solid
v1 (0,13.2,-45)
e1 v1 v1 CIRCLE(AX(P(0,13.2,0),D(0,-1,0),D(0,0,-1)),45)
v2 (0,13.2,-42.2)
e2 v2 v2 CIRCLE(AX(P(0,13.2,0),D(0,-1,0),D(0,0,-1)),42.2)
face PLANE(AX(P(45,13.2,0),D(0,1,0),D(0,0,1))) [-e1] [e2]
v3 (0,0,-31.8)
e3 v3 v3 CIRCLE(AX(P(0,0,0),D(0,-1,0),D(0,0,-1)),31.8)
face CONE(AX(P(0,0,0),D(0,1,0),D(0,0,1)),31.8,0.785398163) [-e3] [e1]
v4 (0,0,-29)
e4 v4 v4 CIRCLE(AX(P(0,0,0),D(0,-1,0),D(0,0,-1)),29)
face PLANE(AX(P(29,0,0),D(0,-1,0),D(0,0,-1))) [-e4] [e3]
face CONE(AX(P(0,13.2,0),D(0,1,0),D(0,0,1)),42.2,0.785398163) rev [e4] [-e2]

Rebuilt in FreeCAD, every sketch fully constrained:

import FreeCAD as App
import Part
import Sketcher

V = App.Vector
Q = App.Units.Quantity

doc = App.newDocument("Part")
body = doc.addObject("PartDesign::Body", "Body")

sketch1 = body.newObject("Sketcher::SketchObject", "Sketch")
sketch1.AttachmentSupport = (doc.getObject("XY_Plane"), [""])
sketch1.MapMode = "FlatFace"
sketch1.addGeometry([
    Part.LineSegment(V(31.8, 0, 0), V(45, 13.2, 0)),
    Part.LineSegment(V(45, 13.2, 0), V(42.2, 13.2, 0)),
    Part.LineSegment(V(42.2, 13.2, 0), V(29, 0, 0)),
    Part.LineSegment(V(29, 0, 0), V(31.8, 0, 0)),
], False)
sketch1.addConstraint([
    Sketcher.Constraint("Coincident", 0, 2, 1, 1),
    Sketcher.Constraint("Coincident", 1, 2, 2, 1),
    Sketcher.Constraint("Coincident", 2, 2, 3, 1),
    Sketcher.Constraint("Coincident", 3, 2, 0, 1),
    Sketcher.Constraint("Horizontal", 1),
    Sketcher.Constraint("Horizontal", 3),
    Sketcher.Constraint("PointOnObject", 2, 2, -1),
    Sketcher.Constraint("Parallel", 0, 2),
    Sketcher.Constraint("Angle", 0, Q("45 deg")),
    Sketcher.Constraint("DistanceX", 1, 2, 1, 1, 2.8),
    Sketcher.Constraint("DistanceX", -1, 1, 0, 2, 45.0),
    Sketcher.Constraint("DistanceX", -1, 1, 2, 2, 29.0),
])
revolution = body.newObject("PartDesign::Revolution", "Revolution")
revolution.Profile = sketch1
revolution.ReferenceAxis = (sketch1, ["V_Axis"])
revolution.Angle = 360

doc.recompute()
